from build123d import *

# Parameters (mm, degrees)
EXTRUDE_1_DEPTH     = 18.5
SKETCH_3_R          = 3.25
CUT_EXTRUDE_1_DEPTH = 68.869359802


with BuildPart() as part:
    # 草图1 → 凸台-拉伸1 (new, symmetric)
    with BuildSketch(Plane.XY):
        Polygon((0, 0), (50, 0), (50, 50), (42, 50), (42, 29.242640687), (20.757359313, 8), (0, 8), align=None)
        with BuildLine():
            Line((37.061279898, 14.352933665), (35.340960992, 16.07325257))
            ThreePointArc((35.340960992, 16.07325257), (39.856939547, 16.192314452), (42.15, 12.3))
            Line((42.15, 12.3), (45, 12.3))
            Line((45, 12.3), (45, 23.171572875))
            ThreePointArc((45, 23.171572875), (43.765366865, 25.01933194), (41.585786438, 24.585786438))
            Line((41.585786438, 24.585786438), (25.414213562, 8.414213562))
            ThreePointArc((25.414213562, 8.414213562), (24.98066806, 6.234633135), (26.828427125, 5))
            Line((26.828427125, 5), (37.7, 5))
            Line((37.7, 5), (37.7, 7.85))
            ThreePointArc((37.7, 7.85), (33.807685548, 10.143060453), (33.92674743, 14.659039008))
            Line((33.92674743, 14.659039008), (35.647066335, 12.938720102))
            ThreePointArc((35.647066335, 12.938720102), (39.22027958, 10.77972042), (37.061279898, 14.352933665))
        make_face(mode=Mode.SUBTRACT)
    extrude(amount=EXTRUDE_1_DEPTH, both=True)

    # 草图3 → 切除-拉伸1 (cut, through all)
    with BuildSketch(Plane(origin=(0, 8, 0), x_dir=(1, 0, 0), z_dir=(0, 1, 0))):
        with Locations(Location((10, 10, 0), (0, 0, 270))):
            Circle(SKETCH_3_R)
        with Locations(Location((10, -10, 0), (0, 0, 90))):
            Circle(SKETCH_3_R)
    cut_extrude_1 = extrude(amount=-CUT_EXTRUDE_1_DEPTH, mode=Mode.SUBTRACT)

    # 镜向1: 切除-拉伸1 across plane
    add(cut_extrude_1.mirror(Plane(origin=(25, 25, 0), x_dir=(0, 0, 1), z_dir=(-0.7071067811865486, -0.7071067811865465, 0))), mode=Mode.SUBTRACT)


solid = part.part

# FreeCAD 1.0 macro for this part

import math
import FreeCAD as App
import Part
import Sketcher

V = App.Vector

doc = App.newDocument("Part")
body = doc.addObject("PartDesign::Body", "Body")

sketch1 = body.newObject("Sketcher::SketchObject", "Sketch")
sketch1.AttachmentSupport = (doc.getObject("XY_Plane"), [""])
sketch1.MapMode = "FlatFace"
sketch1.addGeometry([
    Part.LineSegment(V(0, 0, 0), V(50, 0, 0)),
    Part.LineSegment(V(50, 0, 0), V(50, 50, 0)),
    Part.LineSegment(V(50, 50, 0), V(42, 50, 0)),
    Part.LineSegment(V(42, 50, 0), V(42, 29.2, 0)),
    Part.LineSegment(V(42, 29.2, 0), V(20.8, 8, 0)),
    Part.LineSegment(V(20.8, 8, 0), V(0, 8, 0)),
    Part.LineSegment(V(0, 8, 0), V(0, 0, 0)),
    Part.LineSegment(V(35.3, 16.1, 0), V(37.1, 14.4, 0)),
    Part.ArcOfCircle(Part.Circle(V(37.7, 12.3, 0), V(0, 0, 1), 2.1), math.radians(163), math.radians(467)),
    Part.LineSegment(V(35.6, 12.9, 0), V(33.9, 14.7, 0)),
    Part.ArcOfCircle(Part.Circle(V(37.7, 12.3, 0), V(0, 0, 1), 4.5), math.radians(148), math.radians(270)),
    Part.LineSegment(V(37.7, 7.8, 0), V(37.7, 5, 0)),
    Part.LineSegment(V(37.7, 5, 0), V(26.8, 5, 0)),
    Part.ArcOfCircle(Part.Circle(V(26.8, 7, 0), V(0, 0, 1), 2), math.radians(135), math.radians(270)),
    Part.LineSegment(V(25.4, 8.4, 0), V(41.6, 24.6, 0)),
    Part.ArcOfCircle(Part.Circle(V(43, 23.2, 0), V(0, 0, 1), 2), math.radians(0), math.radians(135)),
    Part.LineSegment(V(45, 23.2, 0), V(45, 12.3, 0)),
    Part.LineSegment(V(45, 12.3, 0), V(42.1, 12.3, 0)),
    Part.ArcOfCircle(Part.Circle(V(37.7, 12.3, 0), V(0, 0, 1), 4.5), math.radians(0), math.radians(122)),
], False)
sketch1.addConstraint([
    Sketcher.Constraint("Coincident", 0, 2, 1, 1),
    Sketcher.Constraint("Coincident", 1, 2, 2, 1),
    Sketcher.Constraint("Coincident", 2, 2, 3, 1),
    Sketcher.Constraint("Coincident", 3, 2, 4, 1),
    Sketcher.Constraint("Coincident", 4, 2, 5, 1),
    Sketcher.Constraint("Coincident", 5, 2, 6, 1),
    Sketcher.Constraint("Coincident", 6, 2, 0, 1),
    Sketcher.Constraint("Coincident", 7, 2, 8, 2),
    Sketcher.Constraint("Coincident", 8, 1, 9, 1),
    Sketcher.Constraint("Coincident", 9, 2, 10, 1),
    Sketcher.Constraint("Coincident", 10, 2, 11, 1),
    Sketcher.Constraint("Coincident", 11, 2, 12, 1),
    Sketcher.Constraint("Tangent", 12, 2, 13, 2),
    Sketcher.Constraint("Tangent", 13, 1, 14, 1),
    Sketcher.Constraint("Tangent", 14, 2, 15, 2),
    Sketcher.Constraint("Tangent", 15, 1, 16, 1),
    Sketcher.Constraint("Coincident", 16, 2, 17, 1),
    Sketcher.Constraint("Coincident", 17, 2, 18, 1),
    Sketcher.Constraint("Coincident", 18, 2, 7, 1),
    Sketcher.Constraint("Horizontal", 0),
    Sketcher.Constraint("Vertical", 1),
    Sketcher.Constraint("Horizontal", 2),
    Sketcher.Constraint("Vertical", 3),
    Sketcher.Constraint("Horizontal", 5),
    Sketcher.Constraint("Vertical", 6),
    Sketcher.Constraint("Vertical", 11),
    Sketcher.Constraint("Horizontal", 12),
    Sketcher.Constraint("Vertical", 16),
    Sketcher.Constraint("Horizontal", 17),
    Sketcher.Constraint("Coincident", 6, 2, -1, 1),
    Sketcher.Constraint("Coincident", 10, 3, 8, 3),
    Sketcher.Constraint("Coincident", 18, 3, 8, 3),
    Sketcher.Constraint("Equal", 13, 15),
    Sketcher.Constraint("Equal", 10, 18),
    Sketcher.Constraint("Perpendicular", 4, 7),
    Sketcher.Constraint("Parallel", 7, 9),
    Sketcher.Constraint("Perpendicular", 9, 14),
    Sketcher.Constraint("Horizontal", 18, 3, 16, 2),
    Sketcher.Constraint("Vertical", 18, 3, 10, 2),
    Sketcher.Constraint("Equal", 0, 1),
    Sketcher.Constraint("Equal", 5, 3),
    Sketcher.Constraint("Equal", 2, 6),
    Sketcher.Constraint("Equal", 17, 11),
    Sketcher.Constraint("Equal", 7, 9),
    Sketcher.Constraint("Radius", 13, 2.0),
    Sketcher.Constraint("DistanceX", 0, 1, 0, 2, 50.0),
    Sketcher.Constraint("DistanceX", 2, 2, 2, 1, 8.0),
    Sketcher.Constraint("Radius", 8, 2.15),
    Sketcher.Constraint("Radius", 10, 4.45),
    Sketcher.Constraint("DistanceY", -1, 1, 13, 3, 7.0),
    Sketcher.Constraint("DistanceX", -1, 1, 15, 3, 43.0),
    Sketcher.Constraint("DistanceX", 17, 2, 17, 1, 2.85),
    Sketcher.Constraint("Distance", 7, 2.432898),
    Sketcher.Constraint("DistanceX", 5, 2, 5, 1, 20.757359),
    Sketcher.Constraint("DistanceX", 12, 2, 12, 1, 10.871573),
])
pad1 = body.newObject("PartDesign::Pad", "Pad")
pad1.Profile = sketch1
pad1.Length = 37
pad1.Midplane = True

sketch2 = body.newObject("Sketcher::SketchObject", "Sketch001")
sketch2.AttachmentSupport = (doc.getObject("XZ_Plane"), [""])
sketch2.MapMode = "FlatFace"
sketch2.AttachmentOffset = App.Placement(V(0, 0, -8), App.Rotation())
sketch2.addGeometry([
    Part.Circle(V(10, -10, 0), V(0, 0, 1), 3.2),
    Part.Circle(V(10, 10, 0), V(0, 0, 1), 3.2),
], False)
sketch2.addConstraint([
    Sketcher.Constraint("Equal", 0, 1),
    Sketcher.Constraint("Symmetric", 0, 3, 1, 3, -1),
    Sketcher.Constraint("Diameter", 0, 6.5),
    Sketcher.Constraint("DistanceX", -1, 1, 0, 3, 10.0),
    Sketcher.Constraint("DistanceY", 0, 3, -1, 1, 10.0),
])
pocket1 = body.newObject("PartDesign::Pocket", "Pocket")
pocket1.Profile = sketch2
pocket1.Type = "ThroughAll"
pocket1.Reversed = True
doc.recompute()

datumplane = body.newObject("PartDesign::Plane", "DatumPlane")
datumplane.Placement = App.Placement(V(25, 25, 0), App.Rotation(V(-0.707106781, 0.707106781, 0), V(0, 0, -1), V(-0.707106781, -0.707106781, 0), "ZXY"))
mirrored = body.newObject("PartDesign::Mirrored", "Mirrored")
mirrored.Originals = [pocket1]
mirrored.MirrorPlane = (datumplane, [""])
body.Tip = mirrored

doc.recompute()
